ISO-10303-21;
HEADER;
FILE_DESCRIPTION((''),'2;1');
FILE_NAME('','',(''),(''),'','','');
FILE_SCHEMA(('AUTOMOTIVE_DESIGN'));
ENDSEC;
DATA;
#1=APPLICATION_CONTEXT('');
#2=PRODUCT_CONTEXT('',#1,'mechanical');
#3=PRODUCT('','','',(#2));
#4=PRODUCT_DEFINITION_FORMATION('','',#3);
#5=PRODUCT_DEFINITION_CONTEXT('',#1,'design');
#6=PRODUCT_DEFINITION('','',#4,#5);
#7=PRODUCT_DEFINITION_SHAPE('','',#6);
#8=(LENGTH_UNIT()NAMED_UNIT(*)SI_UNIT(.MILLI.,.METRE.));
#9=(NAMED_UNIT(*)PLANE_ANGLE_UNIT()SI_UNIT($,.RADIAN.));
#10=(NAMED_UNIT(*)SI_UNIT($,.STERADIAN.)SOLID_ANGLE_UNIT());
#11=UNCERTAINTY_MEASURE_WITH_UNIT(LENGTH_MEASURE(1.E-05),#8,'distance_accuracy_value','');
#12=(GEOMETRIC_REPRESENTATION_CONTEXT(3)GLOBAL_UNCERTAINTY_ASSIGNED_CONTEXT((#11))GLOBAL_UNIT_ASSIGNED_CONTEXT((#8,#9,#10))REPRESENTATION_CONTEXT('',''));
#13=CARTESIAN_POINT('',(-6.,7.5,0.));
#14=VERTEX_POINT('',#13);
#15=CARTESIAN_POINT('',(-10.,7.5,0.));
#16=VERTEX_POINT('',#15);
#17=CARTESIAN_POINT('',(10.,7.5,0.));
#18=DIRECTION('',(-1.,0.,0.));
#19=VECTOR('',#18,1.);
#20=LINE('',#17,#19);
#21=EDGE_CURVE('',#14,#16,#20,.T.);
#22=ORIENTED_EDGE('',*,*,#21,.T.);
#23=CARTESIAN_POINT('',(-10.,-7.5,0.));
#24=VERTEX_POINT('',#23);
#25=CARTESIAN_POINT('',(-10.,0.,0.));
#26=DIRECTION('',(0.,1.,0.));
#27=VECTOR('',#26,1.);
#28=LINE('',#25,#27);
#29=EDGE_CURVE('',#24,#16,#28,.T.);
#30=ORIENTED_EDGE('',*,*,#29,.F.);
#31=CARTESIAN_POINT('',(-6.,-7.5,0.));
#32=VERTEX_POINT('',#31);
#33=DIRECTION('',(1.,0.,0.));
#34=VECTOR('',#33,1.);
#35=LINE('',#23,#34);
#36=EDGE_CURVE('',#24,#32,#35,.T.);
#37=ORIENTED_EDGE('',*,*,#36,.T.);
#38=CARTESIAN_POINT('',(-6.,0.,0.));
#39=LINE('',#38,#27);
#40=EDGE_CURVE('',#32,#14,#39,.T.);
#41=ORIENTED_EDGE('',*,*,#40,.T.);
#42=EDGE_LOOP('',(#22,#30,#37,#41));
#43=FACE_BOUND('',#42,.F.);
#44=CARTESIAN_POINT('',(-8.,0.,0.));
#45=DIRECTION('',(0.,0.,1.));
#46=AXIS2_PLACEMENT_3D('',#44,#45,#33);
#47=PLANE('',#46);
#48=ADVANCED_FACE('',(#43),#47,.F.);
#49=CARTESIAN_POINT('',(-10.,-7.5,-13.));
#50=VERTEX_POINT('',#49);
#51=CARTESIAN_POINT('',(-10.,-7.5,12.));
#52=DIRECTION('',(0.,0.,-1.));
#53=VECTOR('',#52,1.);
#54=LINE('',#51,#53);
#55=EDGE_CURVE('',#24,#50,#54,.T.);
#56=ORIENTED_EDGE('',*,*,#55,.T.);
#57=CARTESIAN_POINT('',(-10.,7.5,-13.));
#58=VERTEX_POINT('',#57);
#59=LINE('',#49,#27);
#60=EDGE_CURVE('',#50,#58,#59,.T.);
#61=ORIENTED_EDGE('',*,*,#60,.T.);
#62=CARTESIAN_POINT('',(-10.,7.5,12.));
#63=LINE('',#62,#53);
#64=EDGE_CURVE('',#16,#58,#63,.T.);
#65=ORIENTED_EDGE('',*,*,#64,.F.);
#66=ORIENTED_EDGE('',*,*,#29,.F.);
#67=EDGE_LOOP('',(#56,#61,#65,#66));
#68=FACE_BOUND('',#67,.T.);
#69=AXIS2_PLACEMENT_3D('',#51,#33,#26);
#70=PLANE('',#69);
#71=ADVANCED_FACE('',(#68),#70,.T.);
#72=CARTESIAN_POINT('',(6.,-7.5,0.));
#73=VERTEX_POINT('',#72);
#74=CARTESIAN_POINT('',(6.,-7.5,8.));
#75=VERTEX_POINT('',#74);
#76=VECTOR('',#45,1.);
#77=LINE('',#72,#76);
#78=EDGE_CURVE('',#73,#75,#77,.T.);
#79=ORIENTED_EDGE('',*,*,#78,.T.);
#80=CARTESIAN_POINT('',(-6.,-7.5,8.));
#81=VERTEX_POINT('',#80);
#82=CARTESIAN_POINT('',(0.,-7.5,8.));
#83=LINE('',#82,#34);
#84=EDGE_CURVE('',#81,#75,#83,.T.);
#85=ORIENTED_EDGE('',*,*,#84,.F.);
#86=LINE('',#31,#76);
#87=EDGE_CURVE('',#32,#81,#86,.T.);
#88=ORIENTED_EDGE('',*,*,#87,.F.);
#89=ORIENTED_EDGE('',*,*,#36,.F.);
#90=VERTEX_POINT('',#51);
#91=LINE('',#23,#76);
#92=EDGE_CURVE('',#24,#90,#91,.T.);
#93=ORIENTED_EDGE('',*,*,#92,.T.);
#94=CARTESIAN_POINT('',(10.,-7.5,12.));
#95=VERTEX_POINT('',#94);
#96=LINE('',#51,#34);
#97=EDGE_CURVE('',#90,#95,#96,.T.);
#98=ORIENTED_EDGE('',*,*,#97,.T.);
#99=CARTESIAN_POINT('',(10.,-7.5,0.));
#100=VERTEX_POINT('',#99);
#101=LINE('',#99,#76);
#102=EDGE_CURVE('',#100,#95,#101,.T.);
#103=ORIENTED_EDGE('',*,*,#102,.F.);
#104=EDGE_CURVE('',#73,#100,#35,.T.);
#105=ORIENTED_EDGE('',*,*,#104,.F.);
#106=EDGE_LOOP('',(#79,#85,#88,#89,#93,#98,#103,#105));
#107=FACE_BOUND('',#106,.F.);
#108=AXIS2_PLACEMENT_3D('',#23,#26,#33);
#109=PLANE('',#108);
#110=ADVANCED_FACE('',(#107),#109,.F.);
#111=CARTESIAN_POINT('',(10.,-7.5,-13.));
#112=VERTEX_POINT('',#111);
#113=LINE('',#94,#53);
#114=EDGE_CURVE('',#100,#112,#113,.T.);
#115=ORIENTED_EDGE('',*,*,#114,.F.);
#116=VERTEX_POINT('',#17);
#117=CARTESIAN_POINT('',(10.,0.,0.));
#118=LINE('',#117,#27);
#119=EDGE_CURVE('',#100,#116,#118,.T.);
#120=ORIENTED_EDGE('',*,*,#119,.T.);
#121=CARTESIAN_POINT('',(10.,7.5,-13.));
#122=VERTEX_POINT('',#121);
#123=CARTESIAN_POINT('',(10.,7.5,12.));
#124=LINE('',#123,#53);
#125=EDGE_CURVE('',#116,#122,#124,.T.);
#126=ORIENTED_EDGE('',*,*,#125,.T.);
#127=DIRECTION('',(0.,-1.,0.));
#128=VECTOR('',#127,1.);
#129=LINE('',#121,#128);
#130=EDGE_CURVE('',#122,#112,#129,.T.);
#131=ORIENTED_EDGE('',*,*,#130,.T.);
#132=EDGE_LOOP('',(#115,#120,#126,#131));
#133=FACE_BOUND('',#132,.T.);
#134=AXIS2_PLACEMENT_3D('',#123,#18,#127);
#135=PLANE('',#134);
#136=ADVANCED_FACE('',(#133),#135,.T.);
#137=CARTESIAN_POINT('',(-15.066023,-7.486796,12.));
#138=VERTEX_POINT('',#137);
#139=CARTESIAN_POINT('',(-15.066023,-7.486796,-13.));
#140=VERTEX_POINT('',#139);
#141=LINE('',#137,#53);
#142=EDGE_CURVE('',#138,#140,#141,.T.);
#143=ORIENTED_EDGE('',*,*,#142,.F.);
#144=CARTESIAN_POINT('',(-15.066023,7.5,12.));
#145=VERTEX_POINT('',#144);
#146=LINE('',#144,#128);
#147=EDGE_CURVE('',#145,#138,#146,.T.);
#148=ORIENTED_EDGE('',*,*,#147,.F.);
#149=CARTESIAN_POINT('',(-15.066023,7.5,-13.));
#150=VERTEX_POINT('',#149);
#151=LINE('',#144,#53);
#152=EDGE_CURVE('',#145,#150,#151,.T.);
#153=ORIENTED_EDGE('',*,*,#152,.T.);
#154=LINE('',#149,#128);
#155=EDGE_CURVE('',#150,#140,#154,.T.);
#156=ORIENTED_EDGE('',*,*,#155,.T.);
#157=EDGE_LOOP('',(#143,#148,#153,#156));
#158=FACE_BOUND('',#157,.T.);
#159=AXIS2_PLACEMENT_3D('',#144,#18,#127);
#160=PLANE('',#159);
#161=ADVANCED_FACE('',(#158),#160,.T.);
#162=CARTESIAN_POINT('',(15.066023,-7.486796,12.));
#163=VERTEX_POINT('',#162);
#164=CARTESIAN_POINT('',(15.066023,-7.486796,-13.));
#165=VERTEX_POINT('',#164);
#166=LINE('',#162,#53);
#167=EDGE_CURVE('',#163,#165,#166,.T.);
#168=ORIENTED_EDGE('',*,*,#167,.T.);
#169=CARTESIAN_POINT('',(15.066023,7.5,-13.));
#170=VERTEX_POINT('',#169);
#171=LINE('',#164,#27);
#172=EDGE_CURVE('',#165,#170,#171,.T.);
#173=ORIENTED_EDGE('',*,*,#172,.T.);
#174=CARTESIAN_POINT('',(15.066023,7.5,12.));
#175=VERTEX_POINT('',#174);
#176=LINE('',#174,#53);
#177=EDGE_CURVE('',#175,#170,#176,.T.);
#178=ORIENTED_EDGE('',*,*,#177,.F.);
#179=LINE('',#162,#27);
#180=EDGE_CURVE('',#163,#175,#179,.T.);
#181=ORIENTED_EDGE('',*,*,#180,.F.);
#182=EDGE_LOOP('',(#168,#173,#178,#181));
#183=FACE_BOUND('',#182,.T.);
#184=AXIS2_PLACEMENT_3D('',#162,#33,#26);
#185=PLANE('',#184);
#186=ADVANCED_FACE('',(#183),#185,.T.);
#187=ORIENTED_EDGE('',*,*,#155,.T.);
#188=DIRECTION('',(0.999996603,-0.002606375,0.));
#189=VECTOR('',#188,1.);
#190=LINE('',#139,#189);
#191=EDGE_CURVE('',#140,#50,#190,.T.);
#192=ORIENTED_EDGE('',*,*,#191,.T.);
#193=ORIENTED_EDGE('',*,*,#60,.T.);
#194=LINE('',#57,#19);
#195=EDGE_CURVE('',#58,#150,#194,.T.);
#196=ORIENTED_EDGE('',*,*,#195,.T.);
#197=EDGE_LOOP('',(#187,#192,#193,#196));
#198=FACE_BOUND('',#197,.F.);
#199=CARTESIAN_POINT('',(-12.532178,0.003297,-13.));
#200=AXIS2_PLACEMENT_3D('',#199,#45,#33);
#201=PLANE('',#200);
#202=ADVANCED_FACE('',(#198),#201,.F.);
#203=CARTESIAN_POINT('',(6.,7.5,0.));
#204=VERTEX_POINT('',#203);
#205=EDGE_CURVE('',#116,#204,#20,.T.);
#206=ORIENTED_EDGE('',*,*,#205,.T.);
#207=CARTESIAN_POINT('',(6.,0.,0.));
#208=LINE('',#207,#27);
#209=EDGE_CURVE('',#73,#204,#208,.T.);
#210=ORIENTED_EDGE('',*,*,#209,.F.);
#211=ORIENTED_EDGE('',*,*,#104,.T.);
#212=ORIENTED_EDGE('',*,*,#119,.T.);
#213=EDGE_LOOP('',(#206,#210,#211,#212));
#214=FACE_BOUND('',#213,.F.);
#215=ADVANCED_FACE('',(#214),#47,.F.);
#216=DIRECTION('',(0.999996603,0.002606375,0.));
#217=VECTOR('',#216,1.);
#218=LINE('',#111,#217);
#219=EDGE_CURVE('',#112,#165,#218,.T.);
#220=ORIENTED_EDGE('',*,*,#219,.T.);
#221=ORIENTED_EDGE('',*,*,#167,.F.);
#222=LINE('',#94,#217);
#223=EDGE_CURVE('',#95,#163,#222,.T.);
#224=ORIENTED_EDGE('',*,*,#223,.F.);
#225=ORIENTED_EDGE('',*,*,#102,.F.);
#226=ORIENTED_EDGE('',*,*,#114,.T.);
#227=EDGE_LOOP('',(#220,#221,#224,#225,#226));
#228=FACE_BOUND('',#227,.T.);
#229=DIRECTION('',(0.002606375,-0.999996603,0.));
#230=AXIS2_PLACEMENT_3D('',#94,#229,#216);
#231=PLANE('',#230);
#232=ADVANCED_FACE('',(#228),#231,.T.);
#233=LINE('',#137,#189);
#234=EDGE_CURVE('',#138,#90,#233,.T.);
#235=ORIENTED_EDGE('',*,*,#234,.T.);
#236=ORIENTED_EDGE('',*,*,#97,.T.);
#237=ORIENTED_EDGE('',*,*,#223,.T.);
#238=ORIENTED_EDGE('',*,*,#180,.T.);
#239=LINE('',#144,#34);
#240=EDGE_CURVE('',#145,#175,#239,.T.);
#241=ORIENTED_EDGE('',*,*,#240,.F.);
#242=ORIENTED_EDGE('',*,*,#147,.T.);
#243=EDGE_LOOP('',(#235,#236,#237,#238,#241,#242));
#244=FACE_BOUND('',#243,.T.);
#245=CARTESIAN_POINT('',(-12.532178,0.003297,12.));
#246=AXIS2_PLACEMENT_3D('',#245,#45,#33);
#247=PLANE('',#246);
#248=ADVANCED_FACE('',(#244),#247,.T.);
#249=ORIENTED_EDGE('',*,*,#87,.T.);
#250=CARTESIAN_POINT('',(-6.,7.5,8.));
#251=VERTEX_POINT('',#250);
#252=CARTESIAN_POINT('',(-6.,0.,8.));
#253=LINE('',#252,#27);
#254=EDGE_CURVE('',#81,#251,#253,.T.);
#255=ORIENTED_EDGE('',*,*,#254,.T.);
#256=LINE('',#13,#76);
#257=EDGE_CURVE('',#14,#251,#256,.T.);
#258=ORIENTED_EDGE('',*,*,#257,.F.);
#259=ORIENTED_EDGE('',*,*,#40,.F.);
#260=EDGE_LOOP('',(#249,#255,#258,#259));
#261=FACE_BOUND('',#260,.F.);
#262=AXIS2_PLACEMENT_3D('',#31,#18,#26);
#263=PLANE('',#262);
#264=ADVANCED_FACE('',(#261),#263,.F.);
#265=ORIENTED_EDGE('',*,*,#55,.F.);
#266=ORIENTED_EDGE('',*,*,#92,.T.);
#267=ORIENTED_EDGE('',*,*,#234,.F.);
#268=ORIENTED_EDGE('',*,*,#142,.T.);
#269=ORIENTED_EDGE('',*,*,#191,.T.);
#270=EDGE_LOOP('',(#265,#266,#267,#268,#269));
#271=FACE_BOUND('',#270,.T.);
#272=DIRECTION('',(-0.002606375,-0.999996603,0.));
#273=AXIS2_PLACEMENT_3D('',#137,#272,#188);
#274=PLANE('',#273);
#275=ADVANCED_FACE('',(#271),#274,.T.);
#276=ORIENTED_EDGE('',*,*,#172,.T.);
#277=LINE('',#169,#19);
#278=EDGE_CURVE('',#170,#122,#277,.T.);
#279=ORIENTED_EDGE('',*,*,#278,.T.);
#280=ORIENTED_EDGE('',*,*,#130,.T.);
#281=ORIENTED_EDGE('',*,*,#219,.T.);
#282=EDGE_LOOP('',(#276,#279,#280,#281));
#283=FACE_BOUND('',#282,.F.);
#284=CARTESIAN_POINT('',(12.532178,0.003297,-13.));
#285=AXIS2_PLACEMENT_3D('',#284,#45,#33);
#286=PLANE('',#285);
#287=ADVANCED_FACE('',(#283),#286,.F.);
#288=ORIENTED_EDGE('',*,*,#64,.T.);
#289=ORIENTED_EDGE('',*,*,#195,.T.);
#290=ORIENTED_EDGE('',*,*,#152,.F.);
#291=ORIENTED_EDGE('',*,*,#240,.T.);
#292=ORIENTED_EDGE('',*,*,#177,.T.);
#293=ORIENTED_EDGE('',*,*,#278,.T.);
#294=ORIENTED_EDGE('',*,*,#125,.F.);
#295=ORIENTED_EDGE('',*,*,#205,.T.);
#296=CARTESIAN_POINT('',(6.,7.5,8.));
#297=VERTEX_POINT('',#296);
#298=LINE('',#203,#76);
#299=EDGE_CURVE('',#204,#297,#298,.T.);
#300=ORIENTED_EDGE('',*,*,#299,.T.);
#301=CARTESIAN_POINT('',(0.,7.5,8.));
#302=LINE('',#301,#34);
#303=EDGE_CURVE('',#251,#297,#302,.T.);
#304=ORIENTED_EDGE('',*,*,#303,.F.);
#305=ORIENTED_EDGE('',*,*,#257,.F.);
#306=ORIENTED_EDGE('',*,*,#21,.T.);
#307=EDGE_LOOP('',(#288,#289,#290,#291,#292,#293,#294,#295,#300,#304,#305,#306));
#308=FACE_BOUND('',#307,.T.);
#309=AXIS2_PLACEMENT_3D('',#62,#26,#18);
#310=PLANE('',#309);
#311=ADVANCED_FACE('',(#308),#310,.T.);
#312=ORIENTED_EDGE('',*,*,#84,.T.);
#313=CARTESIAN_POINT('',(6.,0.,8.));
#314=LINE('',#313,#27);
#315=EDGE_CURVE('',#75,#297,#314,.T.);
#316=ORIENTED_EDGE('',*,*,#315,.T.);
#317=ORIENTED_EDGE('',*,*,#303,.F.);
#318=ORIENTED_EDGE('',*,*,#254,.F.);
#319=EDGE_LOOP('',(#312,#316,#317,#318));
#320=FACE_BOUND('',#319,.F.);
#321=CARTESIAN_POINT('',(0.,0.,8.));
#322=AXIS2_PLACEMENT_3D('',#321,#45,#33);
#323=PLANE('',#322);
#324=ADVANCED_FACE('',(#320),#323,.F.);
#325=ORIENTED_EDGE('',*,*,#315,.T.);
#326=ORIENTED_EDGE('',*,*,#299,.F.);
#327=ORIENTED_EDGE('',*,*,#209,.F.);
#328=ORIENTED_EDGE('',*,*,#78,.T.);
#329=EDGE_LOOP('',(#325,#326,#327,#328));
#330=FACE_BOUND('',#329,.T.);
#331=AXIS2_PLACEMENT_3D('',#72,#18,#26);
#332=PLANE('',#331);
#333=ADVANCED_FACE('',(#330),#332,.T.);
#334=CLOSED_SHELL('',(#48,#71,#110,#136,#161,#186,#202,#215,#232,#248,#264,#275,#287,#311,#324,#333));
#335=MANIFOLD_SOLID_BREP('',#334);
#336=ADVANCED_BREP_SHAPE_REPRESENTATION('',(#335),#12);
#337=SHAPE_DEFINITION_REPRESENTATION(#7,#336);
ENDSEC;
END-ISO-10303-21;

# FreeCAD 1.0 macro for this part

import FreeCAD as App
import Part
import Sketcher

V = App.Vector
Q = App.Units.Quantity

doc = App.newDocument("Part")
body = doc.addObject("PartDesign::Body", "Body")

sketch1 = doc.addObject("Sketcher::SketchObject", "Sketch")
body.addObject(sketch1)
sketch1.AttachmentSupport = (doc.XY_Plane, [""])
sketch1.MapMode = "FlatFace"
sketch1.addGeometry(Part.LineSegment(V(-10, 8, 0), V(-10, -8, 0)), False)
sketch1.addGeometry(Part.LineSegment(V(-10, -8, 0), V(10, -8, 0)), False)
sketch1.addGeometry(Part.LineSegment(V(10, -8, 0), V(10, 8, 0)), False)
sketch1.addGeometry(Part.LineSegment(V(10, 8, 0), V(-10, 8, 0)), False)
sketch1.addConstraint(Sketcher.Constraint("Coincident", 0, 2, 1, 1))
sketch1.addConstraint(Sketcher.Constraint("Coincident", 1, 2, 2, 1))
sketch1.addConstraint(Sketcher.Constraint("Coincident", 2, 2, 3, 1))
sketch1.addConstraint(Sketcher.Constraint("Coincident", 3, 2, 0, 1))
sketch1.addConstraint(Sketcher.Constraint("Vertical", 0))
sketch1.addConstraint(Sketcher.Constraint("Horizontal", 1))
sketch1.addConstraint(Sketcher.Constraint("Vertical", 2))
sketch1.addConstraint(Sketcher.Constraint("Horizontal", 3))
sketch1.addConstraint(Sketcher.Constraint("Symmetric", 0, 2, 2, 2, -1, 1))
sketch1.addConstraint(Sketcher.Constraint("DistanceX", 1, 1, 1, 2, Q("20 mm")))
sketch1.addConstraint(Sketcher.Constraint("DistanceY", 0, 2, 0, 1, Q("15 mm")))
pad1 = doc.addObject("PartDesign::Pad", "Pad")
body.addObject(pad1)
pad1.Profile = sketch1
pad1.Length = 12

sketch2 = doc.addObject("Sketcher::SketchObject", "Sketch001")
body.addObject(sketch2)
sketch2.AttachmentSupport = (doc.XY_Plane, [""])
sketch2.MapMode = "FlatFace"
sketch2.addGeometry(Part.LineSegment(V(-6, 8, 0), V(-6, -8, 0)), False)
sketch2.addGeometry(Part.LineSegment(V(-6, -8, 0), V(6, -8, 0)), False)
sketch2.addGeometry(Part.LineSegment(V(6, -8, 0), V(6, 8, 0)), False)
sketch2.addGeometry(Part.LineSegment(V(6, 8, 0), V(-6, 8, 0)), False)
sketch2.addConstraint(Sketcher.Constraint("Coincident", 0, 2, 1, 1))
sketch2.addConstraint(Sketcher.Constraint("Coincident", 1, 2, 2, 1))
sketch2.addConstraint(Sketcher.Constraint("Coincident", 2, 2, 3, 1))
sketch2.addConstraint(Sketcher.Constraint("Coincident", 3, 2, 0, 1))
sketch2.addConstraint(Sketcher.Constraint("Vertical", 0))
sketch2.addConstraint(Sketcher.Constraint("Horizontal", 1))
sketch2.addConstraint(Sketcher.Constraint("Vertical", 2))
sketch2.addConstraint(Sketcher.Constraint("Horizontal", 3))
sketch2.addConstraint(Sketcher.Constraint("Symmetric", 0, 2, 2, 2, -1, 1))
sketch2.addConstraint(Sketcher.Constraint("DistanceX", 1, 1, 1, 2, Q("12 mm")))
sketch2.addConstraint(Sketcher.Constraint("DistanceY", 0, 2, 0, 1, Q("15 mm")))
pocket1 = doc.addObject("PartDesign::Pocket", "Pocket")
body.addObject(pocket1)
pocket1.Profile = sketch2
pocket1.Length = 8
pocket1.Reversed = True

sketch3 = doc.addObject("Sketcher::SketchObject", "Sketch002")
body.addObject(sketch3)
sketch3.AttachmentSupport = (doc.XY_Plane, [""])
sketch3.MapMode = "FlatFace"
sketch3.AttachmentOffset = App.Placement(V(0, 0, 12), App.Rotation())
sketch3.addGeometry(Part.LineSegment(V(-10, -8, 0), V(-10, 8, 0)), False)
sketch3.addGeometry(Part.LineSegment(V(-10, 8, 0), V(-15, 8, 0)), False)
sketch3.addGeometry(Part.LineSegment(V(-15, 8, 0), V(-15, -7, 0)), False)
sketch3.addGeometry(Part.LineSegment(V(-15, -7, 0), V(-10, -8, 0)), False)
sketch3.addGeometry(Part.LineSegment(V(15, 8, 0), V(10, 8, 0)), False)
sketch3.addGeometry(Part.LineSegment(V(10, 8, 0), V(10, -8, 0)), False)
sketch3.addGeometry(Part.LineSegment(V(10, -8, 0), V(15, -7, 0)), False)
sketch3.addGeometry(Part.LineSegment(V(15, -7, 0), V(15, 8, 0)), False)
sketch3.addConstraint(Sketcher.Constraint("Coincident", 0, 2, 1, 1))
sketch3.addConstraint(Sketcher.Constraint("Coincident", 1, 2, 2, 1))
sketch3.addConstraint(Sketcher.Constraint("Coincident", 2, 2, 3, 1))
sketch3.addConstraint(Sketcher.Constraint("Coincident", 3, 2, 0, 1))
sketch3.addConstraint(Sketcher.Constraint("Coincident", 4, 2, 5, 1))
sketch3.addConstraint(Sketcher.Constraint("Coincident", 5, 2, 6, 1))
sketch3.addConstraint(Sketcher.Constraint("Coincident", 6, 2, 7, 1))
sketch3.addConstraint(Sketcher.Constraint("Coincident", 7, 2, 4, 1))
sketch3.addConstraint(Sketcher.Constraint("Vertical", 0))
sketch3.addConstraint(Sketcher.Constraint("Horizontal", 1))
sketch3.addConstraint(Sketcher.Constraint("Vertical", 2))
sketch3.addConstraint(Sketcher.Constraint("Horizontal", 4))
sketch3.addConstraint(Sketcher.Constraint("Vertical", 5))
sketch3.addConstraint(Sketcher.Constraint("Vertical", 7))
sketch3.addConstraint(Sketcher.Constraint("Symmetric", 3, 2, 4, 2, -1, 1))
sketch3.addConstraint(Sketcher.Constraint("Symmetric", 2, 2, 6, 2, -2))
sketch3.addConstraint(Sketcher.Constraint("Horizontal", 1, 2, 4, 2))
sketch3.addConstraint(Sketcher.Constraint("Horizontal", 3, 2, 5, 2))
sketch3.addConstraint(Sketcher.Constraint("DistanceY", 0, 1, 0, 2, Q("15 mm")))
sketch3.addConstraint(Sketcher.Constraint("DistanceX", 0, 2, -1, 1, Q("10 mm")))
sketch3.addConstraint(Sketcher.Constraint("Distance", 3, Q("5.06604 mm")))
sketch3.addConstraint(Sketcher.Constraint("DistanceY", 2, 2, 2, 1, Q("14.986796 mm")))
pad2 = doc.addObject("PartDesign::Pad", "Pad001")
body.addObject(pad2)
pad2.Profile = sketch3
pad2.Length = 25
pad2.Reversed = True

doc.recompute()
